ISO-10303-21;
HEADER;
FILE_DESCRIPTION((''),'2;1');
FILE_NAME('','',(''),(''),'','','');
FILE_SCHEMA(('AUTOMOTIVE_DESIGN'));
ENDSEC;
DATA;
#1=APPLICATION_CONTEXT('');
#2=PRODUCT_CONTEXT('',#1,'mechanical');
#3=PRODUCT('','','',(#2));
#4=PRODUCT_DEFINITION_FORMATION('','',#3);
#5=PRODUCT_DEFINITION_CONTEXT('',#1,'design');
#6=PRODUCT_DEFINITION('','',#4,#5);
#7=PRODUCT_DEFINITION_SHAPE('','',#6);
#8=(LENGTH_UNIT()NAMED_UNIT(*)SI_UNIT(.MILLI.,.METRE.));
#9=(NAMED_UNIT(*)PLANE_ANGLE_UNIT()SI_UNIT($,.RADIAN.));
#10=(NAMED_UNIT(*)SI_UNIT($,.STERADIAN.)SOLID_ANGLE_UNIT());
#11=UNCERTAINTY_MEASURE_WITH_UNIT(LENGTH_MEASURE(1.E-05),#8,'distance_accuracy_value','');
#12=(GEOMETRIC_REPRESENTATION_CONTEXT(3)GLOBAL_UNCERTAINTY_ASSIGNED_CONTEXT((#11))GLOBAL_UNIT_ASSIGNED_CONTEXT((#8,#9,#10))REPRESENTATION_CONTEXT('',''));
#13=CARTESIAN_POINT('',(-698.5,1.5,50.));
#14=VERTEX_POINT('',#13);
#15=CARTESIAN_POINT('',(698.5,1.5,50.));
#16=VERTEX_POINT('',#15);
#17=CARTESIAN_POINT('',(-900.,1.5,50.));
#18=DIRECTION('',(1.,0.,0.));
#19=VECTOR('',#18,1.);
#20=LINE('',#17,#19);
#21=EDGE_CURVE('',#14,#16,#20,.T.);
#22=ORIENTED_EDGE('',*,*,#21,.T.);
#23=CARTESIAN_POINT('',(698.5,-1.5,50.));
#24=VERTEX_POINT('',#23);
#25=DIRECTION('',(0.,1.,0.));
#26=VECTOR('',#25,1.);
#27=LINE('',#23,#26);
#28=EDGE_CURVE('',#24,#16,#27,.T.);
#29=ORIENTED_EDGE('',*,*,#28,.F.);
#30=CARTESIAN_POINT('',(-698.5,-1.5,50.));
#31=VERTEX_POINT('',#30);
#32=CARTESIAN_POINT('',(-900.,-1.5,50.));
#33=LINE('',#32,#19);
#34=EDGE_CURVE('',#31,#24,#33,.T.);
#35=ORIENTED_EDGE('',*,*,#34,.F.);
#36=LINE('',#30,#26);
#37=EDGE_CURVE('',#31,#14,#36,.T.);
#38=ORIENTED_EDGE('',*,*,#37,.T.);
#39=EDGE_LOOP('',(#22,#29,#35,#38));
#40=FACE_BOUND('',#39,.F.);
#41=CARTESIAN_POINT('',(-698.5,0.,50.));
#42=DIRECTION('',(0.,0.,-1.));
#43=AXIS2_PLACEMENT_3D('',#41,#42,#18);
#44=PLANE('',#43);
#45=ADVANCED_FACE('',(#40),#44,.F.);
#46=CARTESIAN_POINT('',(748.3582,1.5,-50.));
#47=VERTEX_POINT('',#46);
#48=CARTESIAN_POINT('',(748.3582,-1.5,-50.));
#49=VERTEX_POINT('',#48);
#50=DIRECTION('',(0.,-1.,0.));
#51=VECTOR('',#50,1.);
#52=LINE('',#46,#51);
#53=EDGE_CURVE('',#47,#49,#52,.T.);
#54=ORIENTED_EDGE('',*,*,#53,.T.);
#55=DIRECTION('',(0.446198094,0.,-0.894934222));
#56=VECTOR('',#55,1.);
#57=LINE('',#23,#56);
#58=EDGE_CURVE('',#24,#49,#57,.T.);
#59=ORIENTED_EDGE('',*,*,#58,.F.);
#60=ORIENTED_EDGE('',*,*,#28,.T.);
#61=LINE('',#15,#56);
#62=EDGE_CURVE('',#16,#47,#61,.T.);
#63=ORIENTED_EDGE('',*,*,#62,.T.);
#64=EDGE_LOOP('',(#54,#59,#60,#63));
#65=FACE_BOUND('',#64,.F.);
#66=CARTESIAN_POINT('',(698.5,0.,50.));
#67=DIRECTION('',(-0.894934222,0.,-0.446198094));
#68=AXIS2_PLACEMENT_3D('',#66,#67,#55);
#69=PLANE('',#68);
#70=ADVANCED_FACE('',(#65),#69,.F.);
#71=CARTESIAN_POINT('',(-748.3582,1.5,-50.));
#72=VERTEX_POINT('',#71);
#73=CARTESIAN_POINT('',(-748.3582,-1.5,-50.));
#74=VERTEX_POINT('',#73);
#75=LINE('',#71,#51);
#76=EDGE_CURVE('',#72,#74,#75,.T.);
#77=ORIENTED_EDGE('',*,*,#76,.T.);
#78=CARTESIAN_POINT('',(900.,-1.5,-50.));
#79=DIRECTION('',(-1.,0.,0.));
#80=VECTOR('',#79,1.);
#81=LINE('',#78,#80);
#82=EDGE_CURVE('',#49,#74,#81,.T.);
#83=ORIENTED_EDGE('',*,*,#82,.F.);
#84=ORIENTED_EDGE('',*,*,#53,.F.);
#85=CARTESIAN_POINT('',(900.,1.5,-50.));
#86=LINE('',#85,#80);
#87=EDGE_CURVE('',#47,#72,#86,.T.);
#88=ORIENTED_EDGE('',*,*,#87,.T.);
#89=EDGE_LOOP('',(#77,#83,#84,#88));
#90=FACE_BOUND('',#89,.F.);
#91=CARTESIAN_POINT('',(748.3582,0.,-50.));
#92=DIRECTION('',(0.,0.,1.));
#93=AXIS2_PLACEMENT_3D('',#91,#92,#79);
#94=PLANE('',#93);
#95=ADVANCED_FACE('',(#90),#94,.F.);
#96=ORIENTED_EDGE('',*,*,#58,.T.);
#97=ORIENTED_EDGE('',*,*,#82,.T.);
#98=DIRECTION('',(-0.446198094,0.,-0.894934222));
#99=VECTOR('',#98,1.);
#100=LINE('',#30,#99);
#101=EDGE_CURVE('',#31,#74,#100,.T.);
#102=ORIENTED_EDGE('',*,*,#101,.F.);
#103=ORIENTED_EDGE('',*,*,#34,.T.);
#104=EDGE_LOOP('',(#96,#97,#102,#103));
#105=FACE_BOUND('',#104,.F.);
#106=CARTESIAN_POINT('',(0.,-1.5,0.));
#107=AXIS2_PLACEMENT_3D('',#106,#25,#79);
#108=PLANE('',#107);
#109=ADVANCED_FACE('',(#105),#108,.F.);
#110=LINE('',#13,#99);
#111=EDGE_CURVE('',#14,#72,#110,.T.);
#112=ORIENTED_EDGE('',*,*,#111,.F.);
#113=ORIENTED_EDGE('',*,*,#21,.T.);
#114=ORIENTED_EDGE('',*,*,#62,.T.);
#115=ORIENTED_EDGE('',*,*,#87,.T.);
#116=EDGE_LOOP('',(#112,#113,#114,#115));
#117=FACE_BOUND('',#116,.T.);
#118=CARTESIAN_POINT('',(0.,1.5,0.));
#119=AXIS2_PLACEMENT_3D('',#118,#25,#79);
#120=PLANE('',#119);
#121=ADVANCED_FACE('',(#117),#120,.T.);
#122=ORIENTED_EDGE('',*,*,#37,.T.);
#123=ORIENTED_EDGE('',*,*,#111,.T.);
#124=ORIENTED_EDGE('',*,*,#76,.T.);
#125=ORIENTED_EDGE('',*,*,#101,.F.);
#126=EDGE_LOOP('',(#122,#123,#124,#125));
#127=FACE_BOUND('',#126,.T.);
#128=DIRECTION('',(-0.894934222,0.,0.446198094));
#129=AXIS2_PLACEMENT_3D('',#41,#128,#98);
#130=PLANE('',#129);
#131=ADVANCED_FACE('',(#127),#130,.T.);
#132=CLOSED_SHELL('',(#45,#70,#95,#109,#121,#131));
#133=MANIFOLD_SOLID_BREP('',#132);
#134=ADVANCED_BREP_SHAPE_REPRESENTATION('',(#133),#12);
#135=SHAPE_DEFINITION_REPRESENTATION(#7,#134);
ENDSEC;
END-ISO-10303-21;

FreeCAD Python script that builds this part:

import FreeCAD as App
import Part
import Sketcher

V = App.Vector
Q = App.Units.Quantity

doc = App.newDocument("Part")
params = doc.addObject("Spreadsheet::Sheet", "Params")
for row, (alias, value) in enumerate([
    ("pad1_length", "3 mm"),
], start=1):
    params.set(f"A{row}", alias)
    params.set(f"B{row}", "=" + value)
    params.setAlias(f"B{row}", alias)

body = doc.addObject("PartDesign::Body", "Body")

sketch1 = body.newObject("Sketcher::SketchObject", "Sketch")
sketch1.AttachmentSupport = (doc.getObject("XZ_Plane"), [""])
sketch1.MapMode = "FlatFace"
sketch1.addGeometry([
    Part.LineSegment(V(-748, -50, 0), V(-698, 50, 0)),
    Part.LineSegment(V(-698, 50, 0), V(698, 50, 0)),
    Part.LineSegment(V(698, 50, 0), V(748, -50, 0)),
    Part.LineSegment(V(748, -50, 0), V(-748, -50, 0)),
], False)
sketch1.addConstraint([
    Sketcher.Constraint("Coincident", 0, 2, 1, 1),
    Sketcher.Constraint("Coincident", 1, 2, 2, 1),
    Sketcher.Constraint("Coincident", 2, 2, 3, 1),
    Sketcher.Constraint("Coincident", 3, 2, 0, 1),
    Sketcher.Constraint("Horizontal", 1),
    Sketcher.Constraint("Horizontal", 3),
    Sketcher.Constraint("Equal", 0, 2),
    Sketcher.Constraint("DistanceY", 2, 2, 1, 2, 100.0),
    Sketcher.Constraint("DistanceX", 0, 2, -1, 1, 698.5),
    Sketcher.Constraint("DistanceX", -1, 1, 1, 2, 698.5),
    Sketcher.Constraint("DistanceY", -1, 1, 0, 2, 50.0),
    Sketcher.Constraint("Angle", 0, Q("63.5 deg")),
])
pad1 = body.newObject("PartDesign::Pad", "Pad")
pad1.Profile = sketch1
pad1.setExpression("Length", "Params.pad1_length")
pad1.Midplane = True

doc.recompute()
